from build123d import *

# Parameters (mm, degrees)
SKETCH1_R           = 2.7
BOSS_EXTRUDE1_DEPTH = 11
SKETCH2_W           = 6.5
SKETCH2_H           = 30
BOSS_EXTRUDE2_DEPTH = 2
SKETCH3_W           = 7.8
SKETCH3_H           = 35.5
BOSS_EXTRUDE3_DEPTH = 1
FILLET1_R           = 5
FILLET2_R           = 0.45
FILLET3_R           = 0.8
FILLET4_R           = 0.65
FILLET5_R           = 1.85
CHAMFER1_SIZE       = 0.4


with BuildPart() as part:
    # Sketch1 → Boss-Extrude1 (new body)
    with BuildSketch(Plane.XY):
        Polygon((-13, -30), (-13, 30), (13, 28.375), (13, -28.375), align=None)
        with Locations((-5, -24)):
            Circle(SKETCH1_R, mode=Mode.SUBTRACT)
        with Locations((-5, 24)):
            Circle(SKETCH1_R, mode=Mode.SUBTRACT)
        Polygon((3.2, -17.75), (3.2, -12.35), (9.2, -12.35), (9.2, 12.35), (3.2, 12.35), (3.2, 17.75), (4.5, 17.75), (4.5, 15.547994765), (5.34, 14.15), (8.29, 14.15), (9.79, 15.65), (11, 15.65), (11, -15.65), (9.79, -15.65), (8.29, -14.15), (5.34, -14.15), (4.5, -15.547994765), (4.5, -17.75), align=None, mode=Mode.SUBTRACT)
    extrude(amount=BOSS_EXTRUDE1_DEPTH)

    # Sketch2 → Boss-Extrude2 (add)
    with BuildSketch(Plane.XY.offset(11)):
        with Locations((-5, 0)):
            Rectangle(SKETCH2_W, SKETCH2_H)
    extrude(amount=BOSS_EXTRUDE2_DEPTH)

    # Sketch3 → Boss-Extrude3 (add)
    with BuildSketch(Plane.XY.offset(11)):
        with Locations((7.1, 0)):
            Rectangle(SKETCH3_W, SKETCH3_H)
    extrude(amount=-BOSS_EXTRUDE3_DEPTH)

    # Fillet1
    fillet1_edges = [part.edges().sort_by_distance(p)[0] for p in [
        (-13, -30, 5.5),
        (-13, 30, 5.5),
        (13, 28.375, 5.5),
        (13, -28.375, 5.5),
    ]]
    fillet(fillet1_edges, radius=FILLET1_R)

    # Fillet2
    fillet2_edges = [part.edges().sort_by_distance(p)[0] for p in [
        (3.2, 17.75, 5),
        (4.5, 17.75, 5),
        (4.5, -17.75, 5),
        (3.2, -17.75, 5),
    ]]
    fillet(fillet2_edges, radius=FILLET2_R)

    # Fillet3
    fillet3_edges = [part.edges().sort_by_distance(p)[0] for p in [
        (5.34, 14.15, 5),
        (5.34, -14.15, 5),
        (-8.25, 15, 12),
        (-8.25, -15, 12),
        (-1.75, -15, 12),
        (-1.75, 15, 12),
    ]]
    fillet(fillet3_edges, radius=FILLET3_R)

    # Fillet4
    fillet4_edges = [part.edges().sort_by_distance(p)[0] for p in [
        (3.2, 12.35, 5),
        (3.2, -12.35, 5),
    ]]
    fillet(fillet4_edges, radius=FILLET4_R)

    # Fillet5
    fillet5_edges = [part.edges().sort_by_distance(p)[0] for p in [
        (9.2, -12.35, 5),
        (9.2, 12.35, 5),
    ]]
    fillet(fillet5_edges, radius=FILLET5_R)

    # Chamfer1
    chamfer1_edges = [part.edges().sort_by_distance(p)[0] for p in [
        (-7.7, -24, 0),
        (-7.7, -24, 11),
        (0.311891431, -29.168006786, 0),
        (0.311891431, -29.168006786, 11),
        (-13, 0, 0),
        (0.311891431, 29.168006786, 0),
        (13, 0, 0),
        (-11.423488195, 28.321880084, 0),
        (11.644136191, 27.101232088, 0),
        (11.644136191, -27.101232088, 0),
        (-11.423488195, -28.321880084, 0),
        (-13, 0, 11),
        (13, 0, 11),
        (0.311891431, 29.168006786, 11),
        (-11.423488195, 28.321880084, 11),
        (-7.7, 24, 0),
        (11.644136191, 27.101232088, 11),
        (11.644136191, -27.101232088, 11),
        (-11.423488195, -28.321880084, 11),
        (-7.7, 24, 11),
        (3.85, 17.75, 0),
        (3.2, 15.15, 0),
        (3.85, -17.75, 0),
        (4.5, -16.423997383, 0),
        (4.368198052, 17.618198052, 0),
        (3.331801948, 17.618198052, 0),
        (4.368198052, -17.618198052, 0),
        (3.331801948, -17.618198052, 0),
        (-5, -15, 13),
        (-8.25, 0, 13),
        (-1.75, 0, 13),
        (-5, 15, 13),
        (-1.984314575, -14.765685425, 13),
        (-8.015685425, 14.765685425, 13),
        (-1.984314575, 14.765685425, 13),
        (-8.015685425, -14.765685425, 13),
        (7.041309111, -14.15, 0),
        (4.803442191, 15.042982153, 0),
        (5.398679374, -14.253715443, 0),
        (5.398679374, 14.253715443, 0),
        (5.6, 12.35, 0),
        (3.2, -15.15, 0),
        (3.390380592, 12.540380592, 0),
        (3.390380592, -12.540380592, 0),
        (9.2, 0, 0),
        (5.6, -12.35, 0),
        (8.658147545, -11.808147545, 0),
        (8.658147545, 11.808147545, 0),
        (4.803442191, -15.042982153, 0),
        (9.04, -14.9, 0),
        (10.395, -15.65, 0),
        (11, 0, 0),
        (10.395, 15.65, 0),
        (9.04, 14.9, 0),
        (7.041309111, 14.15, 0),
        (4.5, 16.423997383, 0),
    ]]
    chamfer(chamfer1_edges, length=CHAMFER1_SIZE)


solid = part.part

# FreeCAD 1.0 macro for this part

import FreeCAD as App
import Part
import Sketcher

V = App.Vector
Q = App.Units.Quantity


def edges_at(feature, points):
    """Names of the edges that pass closest to the given points."""
    edges = feature.Shape.Edges
    near = lambda p: min(range(len(edges)), key=lambda i: edges[i].distToShape(Part.Vertex(*p))[0])
    return sorted({f"Edge{near(p) + 1}" for p in points})

doc = App.newDocument("Part")
body = doc.addObject("PartDesign::Body", "Body")

sketch1 = doc.addObject("Sketcher::SketchObject", "Sketch")
body.addObject(sketch1)
sketch1.AttachmentSupport = (doc.XY_Plane, [""])
sketch1.MapMode = "FlatFace"
sketch1.addGeometry(Part.LineSegment(V(-13, 30, 0), V(-13, -30, 0)), False)
sketch1.addGeometry(Part.LineSegment(V(-13, -30, 0), V(13, -28.4, 0)), False)
sketch1.addGeometry(Part.LineSegment(V(13, -28.4, 0), V(13, 28.4, 0)), False)
sketch1.addGeometry(Part.LineSegment(V(13, 28.4, 0), V(-13, 30, 0)), False)
sketch1.addGeometry(Part.Circle(V(-5, -24, 0), V(0, 0, 1), 2.7), False)
sketch1.addGeometry(Part.LineSegment(V(3.2, -17.8, 0), V(3.2, -12.3, 0)), False)
sketch1.addGeometry(Part.LineSegment(V(3.2, -12.3, 0), V(9.2, -12.3, 0)), False)
sketch1.addGeometry(Part.LineSegment(V(9.2, -12.3, 0), V(9.2, 12.3, 0)), False)
sketch1.addGeometry(Part.LineSegment(V(9.2, 12.3, 0), V(3.2, 12.3, 0)), False)
sketch1.addGeometry(Part.LineSegment(V(3.2, 12.3, 0), V(3.2, 17.8, 0)), False)
sketch1.addGeometry(Part.LineSegment(V(3.2, 17.8, 0), V(4.5, 17.8, 0)), False)
sketch1.addGeometry(Part.LineSegment(V(4.5, 17.8, 0), V(4.5, 15.5, 0)), False)
sketch1.addGeometry(Part.LineSegment(V(4.5, 15.5, 0), V(5.3, 14.2, 0)), False)
sketch1.addGeometry(Part.LineSegment(V(5.3, 14.2, 0), V(8.3, 14.2, 0)), False)
sketch1.addGeometry(Part.LineSegment(V(8.3, 14.2, 0), V(9.8, 15.7, 0)), False)
sketch1.addGeometry(Part.LineSegment(V(9.8, 15.7, 0), V(11, 15.7, 0)), False)
sketch1.addGeometry(Part.LineSegment(V(11, 15.7, 0), V(11, -15.7, 0)), False)
sketch1.addGeometry(Part.LineSegment(V(11, -15.7, 0), V(9.8, -15.7, 0)), False)
sketch1.addGeometry(Part.LineSegment(V(9.8, -15.7, 0), V(8.3, -14.2, 0)), False)
sketch1.addGeometry(Part.LineSegment(V(8.3, -14.2, 0), V(5.3, -14.2, 0)), False)
sketch1.addGeometry(Part.LineSegment(V(5.3, -14.2, 0), V(4.5, -15.5, 0)), False)
sketch1.addGeometry(Part.LineSegment(V(4.5, -15.5, 0), V(4.5, -17.8, 0)), False)
sketch1.addGeometry(Part.LineSegment(V(4.5, -17.8, 0), V(3.2, -17.8, 0)), False)
sketch1.addGeometry(Part.Circle(V(-5, 24, 0), V(0, 0, 1), 2.7), False)
sketch1.addConstraint(Sketcher.Constraint("Coincident", 0, 2, 1, 1))
sketch1.addConstraint(Sketcher.Constraint("Coincident", 1, 2, 2, 1))
sketch1.addConstraint(Sketcher.Constraint("Coincident", 2, 2, 3, 1))
sketch1.addConstraint(Sketcher.Constraint("Coincident", 3, 2, 0, 1))
sketch1.addConstraint(Sketcher.Constraint("Coincident", 5, 2, 6, 1))
sketch1.addConstraint(Sketcher.Constraint("Coincident", 6, 2, 7, 1))
sketch1.addConstraint(Sketcher.Constraint("Coincident", 7, 2, 8, 1))
sketch1.addConstraint(Sketcher.Constraint("Coincident", 8, 2, 9, 1))
sketch1.addConstraint(Sketcher.Constraint("Coincident", 9, 2, 10, 1))
sketch1.addConstraint(Sketcher.Constraint("Coincident", 10, 2, 11, 1))
sketch1.addConstraint(Sketcher.Constraint("Coincident", 11, 2, 12, 1))
sketch1.addConstraint(Sketcher.Constraint("Coincident", 12, 2, 13, 1))
sketch1.addConstraint(Sketcher.Constraint("Coincident", 13, 2, 14, 1))
sketch1.addConstraint(Sketcher.Constraint("Coincident", 14, 2, 15, 1))
sketch1.addConstraint(Sketcher.Constraint("Coincident", 15, 2, 16, 1))
sketch1.addConstraint(Sketcher.Constraint("Coincident", 16, 2, 17, 1))
sketch1.addConstraint(Sketcher.Constraint("Coincident", 17, 2, 18, 1))
sketch1.addConstraint(Sketcher.Constraint("Coincident", 18, 2, 19, 1))
sketch1.addConstraint(Sketcher.Constraint("Coincident", 19, 2, 20, 1))
sketch1.addConstraint(Sketcher.Constraint("Coincident", 20, 2, 21, 1))
sketch1.addConstraint(Sketcher.Constraint("Coincident", 21, 2, 22, 1))
sketch1.addConstraint(Sketcher.Constraint("Coincident", 22, 2, 5, 1))
sketch1.addConstraint(Sketcher.Constraint("Vertical", 0))
sketch1.addConstraint(Sketcher.Constraint("Vertical", 2))
sketch1.addConstraint(Sketcher.Constraint("Vertical", 5))
sketch1.addConstraint(Sketcher.Constraint("Horizontal", 6))
sketch1.addConstraint(Sketcher.Constraint("Vertical", 7))
sketch1.addConstraint(Sketcher.Constraint("Horizontal", 8))
sketch1.addConstraint(Sketcher.Constraint("Vertical", 9))
sketch1.addConstraint(Sketcher.Constraint("Horizontal", 10))
sketch1.addConstraint(Sketcher.Constraint("Vertical", 11))
sketch1.addConstraint(Sketcher.Constraint("Horizontal", 13))
sketch1.addConstraint(Sketcher.Constraint("Horizontal", 15))
sketch1.addConstraint(Sketcher.Constraint("Vertical", 16))
sketch1.addConstraint(Sketcher.Constraint("Horizontal", 17))
sketch1.addConstraint(Sketcher.Constraint("Horizontal", 19))
sketch1.addConstraint(Sketcher.Constraint("Vertical", 21))
sketch1.addConstraint(Sketcher.Constraint("Horizontal", 22))
sketch1.addConstraint(Sketcher.Constraint("Equal", 4, 23))
sketch1.addConstraint(Sketcher.Constraint("Symmetric", 4, 3, 23, 3, -1))
sketch1.addConstraint(Sketcher.Constraint("Symmetric", 5, 2, 8, 2, -1))
sketch1.addConstraint(Sketcher.Constraint("Symmetric", 14, 2, 17, 2, -1))
sketch1.addConstraint(Sketcher.Constraint("Symmetric", 13, 2, 18, 2, -1))
sketch1.addConstraint(Sketcher.Constraint("Symmetric", 11, 2, 20, 2, -1))
sketch1.addConstraint(Sketcher.Constraint("Perpendicular", 14, 18))
sketch1.addConstraint(Sketcher.Constraint("Vertical", 12, 2, 19, 2))
sketch1.addConstraint(Sketcher.Constraint("Equal", 5, 9))
sketch1.addConstraint(Sketcher.Constraint("Equal", 1, 3))
sketch1.addConstraint(Sketcher.Constraint("Diameter", 4, Q("5.4 mm")))
sketch1.addConstraint(Sketcher.Constraint("DistanceX", 6, 1, 6, 2, Q("6 mm")))
sketch1.addConstraint(Sketcher.Constraint("DistanceY", 0, 2, 0, 1, Q("60 mm")))
sketch1.addConstraint(Sketcher.Constraint("Angle", 12, Q("-59 deg")))
sketch1.addConstraint(Sketcher.Constraint("DistanceX", 10, 1, 10, 2, Q("1.3 mm")))
sketch1.addConstraint(Sketcher.Constraint("DistanceY", 5, 1, 5, 2, Q("5.4 mm")))
sketch1.addConstraint(Sketcher.Constraint("DistanceY", 7, 1, 7, 2, Q("24.7 mm")))
sketch1.addConstraint(Sketcher.Constraint("DistanceY", 16, 2, 16, 1, Q("31.3 mm")))
sketch1.addConstraint(Sketcher.Constraint("DistanceX", 4, 3, -1, 1, Q("5 mm")))
sketch1.addConstraint(Sketcher.Constraint("DistanceY", 4, 3, -1, 1, Q("24 mm")))
sketch1.addConstraint(Sketcher.Constraint("DistanceX", 0, 2, -1, 1, Q("13 mm")))
sketch1.addConstraint(Sketcher.Constraint("DistanceY", 0, 2, -1, 1, Q("30 mm")))
sketch1.addConstraint(Sketcher.Constraint("DistanceX", -1, 1, 1, 2, Q("13 mm")))
sketch1.addConstraint(Sketcher.Constraint("DistanceX", -1, 1, 15, 2, Q("11 mm")))
sketch1.addConstraint(Sketcher.Constraint("DistanceX", 13, 1, 13, 2, Q("2.95 mm")))
sketch1.addConstraint(Sketcher.Constraint("DistanceX", 15, 1, 15, 2, Q("1.21 mm")))
sketch1.addConstraint(Sketcher.Constraint("DistanceY", 2, 1, 2, 2, Q("56.75 mm")))
sketch1.addConstraint(Sketcher.Constraint("DistanceX", -1, 1, 5, 2, Q("3.2 mm")))
sketch1.addConstraint(Sketcher.Constraint("DistanceY", 8, 2, 12, 2, Q("1.8 mm")))
pad1 = doc.addObject("PartDesign::Pad", "Pad")
body.addObject(pad1)
pad1.Profile = sketch1
pad1.Length = 11

sketch2 = doc.addObject("Sketcher::SketchObject", "Sketch001")
body.addObject(sketch2)
sketch2.AttachmentSupport = (doc.XY_Plane, [""])
sketch2.MapMode = "FlatFace"
sketch2.AttachmentOffset = App.Placement(V(0, 0, 11), App.Rotation())
sketch2.addGeometry(Part.LineSegment(V(-8, 15, 0), V(-8, -15, 0)), False)
sketch2.addGeometry(Part.LineSegment(V(-8, -15, 0), V(-2, -15, 0)), False)
sketch2.addGeometry(Part.LineSegment(V(-2, -15, 0), V(-2, 15, 0)), False)
sketch2.addGeometry(Part.LineSegment(V(-2, 15, 0), V(-8, 15, 0)), False)
sketch2.addConstraint(Sketcher.Constraint("Coincident", 0, 2, 1, 1))
sketch2.addConstraint(Sketcher.Constraint("Coincident", 1, 2, 2, 1))
sketch2.addConstraint(Sketcher.Constraint("Coincident", 2, 2, 3, 1))
sketch2.addConstraint(Sketcher.Constraint("Coincident", 3, 2, 0, 1))
sketch2.addConstraint(Sketcher.Constraint("Vertical", 0))
sketch2.addConstraint(Sketcher.Constraint("Horizontal", 1))
sketch2.addConstraint(Sketcher.Constraint("Vertical", 2))
sketch2.addConstraint(Sketcher.Constraint("Horizontal", 3))
sketch2.addConstraint(Sketcher.Constraint("DistanceY", 0, 2, 0, 1, Q("30 mm")))
sketch2.addConstraint(Sketcher.Constraint("DistanceX", 1, 1, 1, 2, Q("6.5 mm")))
sketch2.addConstraint(Sketcher.Constraint("DistanceY", 0, 2, -1, 1, Q("15 mm")))
sketch2.addConstraint(Sketcher.Constraint("DistanceX", 0, 2, -1, 1, Q("8.25 mm")))
pad2 = doc.addObject("PartDesign::Pad", "Pad001")
body.addObject(pad2)
pad2.Profile = sketch2
pad2.Length = 2

sketch3 = doc.addObject("Sketcher::SketchObject", "Sketch002")
body.addObject(sketch3)
sketch3.AttachmentSupport = (doc.XY_Plane, [""])
sketch3.MapMode = "FlatFace"
sketch3.AttachmentOffset = App.Placement(V(0, 0, 11), App.Rotation())
sketch3.addGeometry(Part.LineSegment(V(3, 18, 0), V(3, -18, 0)), False)
sketch3.addGeometry(Part.LineSegment(V(3, -18, 0), V(11, -18, 0)), False)
sketch3.addGeometry(Part.LineSegment(V(11, -18, 0), V(11, 18, 0)), False)
sketch3.addGeometry(Part.LineSegment(V(11, 18, 0), V(3, 18, 0)), False)
sketch3.addConstraint(Sketcher.Constraint("Coincident", 0, 2, 1, 1))
sketch3.addConstraint(Sketcher.Constraint("Coincident", 1, 2, 2, 1))
sketch3.addConstraint(Sketcher.Constraint("Coincident", 2, 2, 3, 1))
sketch3.addConstraint(Sketcher.Constraint("Coincident", 3, 2, 0, 1))
sketch3.addConstraint(Sketcher.Constraint("Vertical", 0))
sketch3.addConstraint(Sketcher.Constraint("Horizontal", 1))
sketch3.addConstraint(Sketcher.Constraint("Vertical", 2))
sketch3.addConstraint(Sketcher.Constraint("Horizontal", 3))
sketch3.addConstraint(Sketcher.Constraint("DistanceX", 1, 1, 1, 2, Q("7.8 mm")))
sketch3.addConstraint(Sketcher.Constraint("DistanceY", 0, 2, 0, 1, Q("35.5 mm")))
sketch3.addConstraint(Sketcher.Constraint("DistanceX", -1, 1, 1, 2, Q("11 mm")))
sketch3.addConstraint(Sketcher.Constraint("DistanceY", 0, 2, -1, 1, Q("17.75 mm")))
pad3 = doc.addObject("PartDesign::Pad", "Pad002")
body.addObject(pad3)
pad3.Profile = sketch3
pad3.Length = 1
pad3.Reversed = True
doc.recompute()

fillet = doc.addObject("PartDesign::Fillet", "Fillet")
body.addObject(fillet)
fillet.Base = (pad3, edges_at(pad3, [
    (-13, -30, 5.5),
    (-13, 30, 5.5),
    (13, 28.375, 5.5),
    (13, -28.375, 5.5),
]))
fillet.Radius = 5
doc.recompute()

fillet2 = doc.addObject("PartDesign::Fillet", "Fillet001")
body.addObject(fillet2)
fillet2.Base = (fillet, edges_at(fillet, [
    (3.2, 17.75, 5),
    (4.5, 17.75, 5),
    (4.5, -17.75, 5),
    (3.2, -17.75, 5),
]))
fillet2.Radius = 0.45
doc.recompute()

fillet3 = doc.addObject("PartDesign::Fillet", "Fillet002")
body.addObject(fillet3)
fillet3.Base = (fillet2, edges_at(fillet2, [
    (5.34, 14.15, 5),
    (5.34, -14.15, 5),
    (-8.25, 15, 12),
    (-8.25, -15, 12),
    (-1.75, -15, 12),
    (-1.75, 15, 12),
]))
fillet3.Radius = 0.8
doc.recompute()

fillet4 = doc.addObject("PartDesign::Fillet", "Fillet003")
body.addObject(fillet4)
fillet4.Base = (fillet3, edges_at(fillet3, [(3.2, 12.35, 5), (3.2, -12.35, 5)]))
fillet4.Radius = 0.65
doc.recompute()

fillet5 = doc.addObject("PartDesign::Fillet", "Fillet004")
body.addObject(fillet5)
fillet5.Base = (fillet4, edges_at(fillet4, [(9.2, -12.35, 5), (9.2, 12.35, 5)]))
fillet5.Radius = 1.85
doc.recompute()

chamfer = doc.addObject("PartDesign::Chamfer", "Chamfer")
body.addObject(chamfer)
chamfer.Base = (fillet5, edges_at(fillet5, [
    (-7.7, -24, 0),
    (-7.7, -24, 11),
    (0.312, -29.168, 0),
    (0.312, -29.168, 11),
    (-13, 0, 0),
    (0.312, 29.168, 0),
    (13, 0, 0),
    (-11.423, 28.322, 0),
    (11.644, 27.101, 0),
    (11.644, -27.101, 0),
    (-11.423, -28.322, 0),
    (-13, 0, 11),
    (13, 0, 11),
    (0.312, 29.168, 11),
    (-11.423, 28.322, 11),
    (-7.7, 24, 0),
    (11.644, 27.101, 11),
    (11.644, -27.101, 11),
    (-11.423, -28.322, 11),
    (-7.7, 24, 11),
    (3.85, 17.75, 0),
    (3.2, 15.15, 0),
    (3.85, -17.75, 0),
    (4.5, -16.424, 0),
    (4.368, 17.618, 0),
    (3.332, 17.618, 0),
    (4.368, -17.618, 0),
    (3.332, -17.618, 0),
    (-5, -15, 13),
    (-8.25, 0, 13),
    (-1.75, 0, 13),
    (-5, 15, 13),
    (-1.984, -14.766, 13),
    (-8.016, 14.766, 13),
    (-1.984, 14.766, 13),
    (-8.016, -14.766, 13),
    (7.041, -14.15, 0),
    (4.803, 15.043, 0),
    (5.399, -14.254, 0),
    (5.399, 14.254, 0),
    (5.6, 12.35, 0),
    (3.2, -15.15, 0),
    (3.39, 12.54, 0),
    (3.39, -12.54, 0),
    (9.2, 0, 0),
    (5.6, -12.35, 0),
    (8.658, -11.808, 0),
    (8.658, 11.808, 0),
    (4.803, -15.043, 0),
    (9.04, -14.9, 0),
    (10.395, -15.65, 0),
    (11, 0, 0),
    (10.395, 15.65, 0),
    (9.04, 14.9, 0),
    (7.041, 14.15, 0),
    (4.5, 16.424, 0),
]))
chamfer.Size = 0.4

doc.recompute()
